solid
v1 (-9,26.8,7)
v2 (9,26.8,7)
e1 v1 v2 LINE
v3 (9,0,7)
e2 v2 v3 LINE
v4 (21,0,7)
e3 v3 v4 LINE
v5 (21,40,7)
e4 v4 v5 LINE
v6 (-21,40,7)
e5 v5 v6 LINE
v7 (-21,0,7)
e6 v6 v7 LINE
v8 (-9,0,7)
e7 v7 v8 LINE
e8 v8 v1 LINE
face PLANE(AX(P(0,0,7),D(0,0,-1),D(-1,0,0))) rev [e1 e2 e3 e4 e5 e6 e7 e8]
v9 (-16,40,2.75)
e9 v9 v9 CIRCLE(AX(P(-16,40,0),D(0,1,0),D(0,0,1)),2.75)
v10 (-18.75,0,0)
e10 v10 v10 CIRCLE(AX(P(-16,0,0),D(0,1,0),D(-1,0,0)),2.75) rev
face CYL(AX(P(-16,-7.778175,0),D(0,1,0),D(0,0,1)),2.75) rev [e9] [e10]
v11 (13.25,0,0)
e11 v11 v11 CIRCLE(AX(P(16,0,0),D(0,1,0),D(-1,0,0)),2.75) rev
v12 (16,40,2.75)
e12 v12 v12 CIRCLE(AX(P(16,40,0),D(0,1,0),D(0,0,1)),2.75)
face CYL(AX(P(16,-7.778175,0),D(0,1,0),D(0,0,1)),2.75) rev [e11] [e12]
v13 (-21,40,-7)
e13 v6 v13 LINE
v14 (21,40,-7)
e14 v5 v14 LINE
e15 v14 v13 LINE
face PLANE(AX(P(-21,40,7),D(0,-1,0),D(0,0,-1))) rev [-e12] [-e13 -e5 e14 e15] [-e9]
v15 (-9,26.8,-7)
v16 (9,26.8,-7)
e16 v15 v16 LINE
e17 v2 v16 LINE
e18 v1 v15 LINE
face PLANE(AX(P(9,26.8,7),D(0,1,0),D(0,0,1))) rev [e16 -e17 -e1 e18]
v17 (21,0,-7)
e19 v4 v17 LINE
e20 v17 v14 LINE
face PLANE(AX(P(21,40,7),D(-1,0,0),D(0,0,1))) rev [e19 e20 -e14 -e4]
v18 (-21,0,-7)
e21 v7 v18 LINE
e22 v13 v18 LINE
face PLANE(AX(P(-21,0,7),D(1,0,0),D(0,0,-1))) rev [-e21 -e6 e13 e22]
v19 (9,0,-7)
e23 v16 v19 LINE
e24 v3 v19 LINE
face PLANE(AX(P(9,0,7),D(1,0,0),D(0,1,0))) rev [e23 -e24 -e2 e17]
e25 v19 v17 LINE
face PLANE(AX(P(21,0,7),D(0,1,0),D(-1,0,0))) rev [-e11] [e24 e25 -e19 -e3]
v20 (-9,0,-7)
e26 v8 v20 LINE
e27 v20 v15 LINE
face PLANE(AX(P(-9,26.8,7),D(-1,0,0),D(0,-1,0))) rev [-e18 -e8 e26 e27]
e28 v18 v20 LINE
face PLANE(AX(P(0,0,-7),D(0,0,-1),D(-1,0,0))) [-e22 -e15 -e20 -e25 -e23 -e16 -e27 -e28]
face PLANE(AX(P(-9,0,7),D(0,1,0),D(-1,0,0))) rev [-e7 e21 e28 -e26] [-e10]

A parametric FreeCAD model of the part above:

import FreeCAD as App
import Part
import Sketcher
from FreeCAD import Vector


def add_polygon(sketch, points):
    """Adds a closed chain of lines whose ends are joined by coincident constraints."""
    first, n = sketch.GeometryCount, len(points)
    for a, b in zip(points, points[1:] + points[:1]):
        sketch.addGeometry(Part.LineSegment(App.Vector(*a, 0), App.Vector(*b, 0)), False)
    for i in range(n):
        sketch.addConstraint(Sketcher.Constraint("Coincident", first + i, 2, first + (i + 1) % n, 1))

doc = App.newDocument("Part")
body = doc.addObject("PartDesign::Body", "Body")

sketch1 = body.newObject("Sketcher::SketchObject", "Sketch")
sketch1.AttachmentSupport = (doc.getObject("XY_Plane"), [""])
sketch1.MapMode = "FlatFace"
add_polygon(sketch1, [(-21, 0), (-9, 0), (-9, 26.8), (9, 26.8), (9, 0), (21, 0), (21, 40), (-21, 40)])
sketch1.addConstraint(Sketcher.Constraint("Horizontal", 0))
sketch1.addConstraint(Sketcher.Constraint("Vertical", 1))
sketch1.addConstraint(Sketcher.Constraint("Horizontal", 2))
sketch1.addConstraint(Sketcher.Constraint("Vertical", 3))
sketch1.addConstraint(Sketcher.Constraint("Horizontal", 4))
sketch1.addConstraint(Sketcher.Constraint("Vertical", 5))
sketch1.addConstraint(Sketcher.Constraint("Horizontal", 6))
sketch1.addConstraint(Sketcher.Constraint("Vertical", 7))
sketch1.addConstraint(Sketcher.Constraint("Symmetric", 0, 2, 3, 2, -1, 1))
sketch1.addConstraint(Sketcher.Constraint("Symmetric", 4, 2, 7, 2, -2))
sketch1.addConstraint(Sketcher.Constraint("DistanceX", 0, 1, 0, 2, 12.0))
sketch1.addConstraint(Sketcher.Constraint("DistanceX", 2, 1, 2, 2, 18.0))
sketch1.addConstraint(Sketcher.Constraint("DistanceY", 5, 1, 5, 2, 40.0))
sketch1.addConstraint(Sketcher.Constraint("DistanceY", 1, 1, 1, 2, 26.8))
pad1 = body.newObject("PartDesign::Pad", "Pad")
pad1.Profile = sketch1
pad1.Length = 14
pad1.Midplane = True

sketch2 = body.newObject("Sketcher::SketchObject", "Sketch001")
sketch2.AttachmentSupport = (doc.getObject("XZ_Plane"), [""])
sketch2.MapMode = "FlatFace"
sketch2.AttachmentOffset = App.Placement(Vector(0, 0, -40), App.Rotation())
sketch2.addGeometry(Part.Circle(Vector(-16, 0, 0), Vector(0, 0, 1), 2.75), False)
sketch2.addGeometry(Part.Circle(Vector(16, 0, 0), Vector(0, 0, 1), 2.75), False)
sketch2.addConstraint(Sketcher.Constraint("Equal", 0, 1))
sketch2.addConstraint(Sketcher.Constraint("Symmetric", 0, 3, 1, 3, -1, 1))
sketch2.addConstraint(Sketcher.Constraint("PointOnObject", 0, 3, -1))
sketch2.addConstraint(Sketcher.Constraint("Diameter", 0, 5.5))
sketch2.addConstraint(Sketcher.Constraint("DistanceX", 0, 3, -1, 1, 16.0))
pocket1 = body.newObject("PartDesign::Pocket", "Pocket")
pocket1.Profile = sketch2
pocket1.Length = 40
pocket1.Reversed = True

doc.recompute()
